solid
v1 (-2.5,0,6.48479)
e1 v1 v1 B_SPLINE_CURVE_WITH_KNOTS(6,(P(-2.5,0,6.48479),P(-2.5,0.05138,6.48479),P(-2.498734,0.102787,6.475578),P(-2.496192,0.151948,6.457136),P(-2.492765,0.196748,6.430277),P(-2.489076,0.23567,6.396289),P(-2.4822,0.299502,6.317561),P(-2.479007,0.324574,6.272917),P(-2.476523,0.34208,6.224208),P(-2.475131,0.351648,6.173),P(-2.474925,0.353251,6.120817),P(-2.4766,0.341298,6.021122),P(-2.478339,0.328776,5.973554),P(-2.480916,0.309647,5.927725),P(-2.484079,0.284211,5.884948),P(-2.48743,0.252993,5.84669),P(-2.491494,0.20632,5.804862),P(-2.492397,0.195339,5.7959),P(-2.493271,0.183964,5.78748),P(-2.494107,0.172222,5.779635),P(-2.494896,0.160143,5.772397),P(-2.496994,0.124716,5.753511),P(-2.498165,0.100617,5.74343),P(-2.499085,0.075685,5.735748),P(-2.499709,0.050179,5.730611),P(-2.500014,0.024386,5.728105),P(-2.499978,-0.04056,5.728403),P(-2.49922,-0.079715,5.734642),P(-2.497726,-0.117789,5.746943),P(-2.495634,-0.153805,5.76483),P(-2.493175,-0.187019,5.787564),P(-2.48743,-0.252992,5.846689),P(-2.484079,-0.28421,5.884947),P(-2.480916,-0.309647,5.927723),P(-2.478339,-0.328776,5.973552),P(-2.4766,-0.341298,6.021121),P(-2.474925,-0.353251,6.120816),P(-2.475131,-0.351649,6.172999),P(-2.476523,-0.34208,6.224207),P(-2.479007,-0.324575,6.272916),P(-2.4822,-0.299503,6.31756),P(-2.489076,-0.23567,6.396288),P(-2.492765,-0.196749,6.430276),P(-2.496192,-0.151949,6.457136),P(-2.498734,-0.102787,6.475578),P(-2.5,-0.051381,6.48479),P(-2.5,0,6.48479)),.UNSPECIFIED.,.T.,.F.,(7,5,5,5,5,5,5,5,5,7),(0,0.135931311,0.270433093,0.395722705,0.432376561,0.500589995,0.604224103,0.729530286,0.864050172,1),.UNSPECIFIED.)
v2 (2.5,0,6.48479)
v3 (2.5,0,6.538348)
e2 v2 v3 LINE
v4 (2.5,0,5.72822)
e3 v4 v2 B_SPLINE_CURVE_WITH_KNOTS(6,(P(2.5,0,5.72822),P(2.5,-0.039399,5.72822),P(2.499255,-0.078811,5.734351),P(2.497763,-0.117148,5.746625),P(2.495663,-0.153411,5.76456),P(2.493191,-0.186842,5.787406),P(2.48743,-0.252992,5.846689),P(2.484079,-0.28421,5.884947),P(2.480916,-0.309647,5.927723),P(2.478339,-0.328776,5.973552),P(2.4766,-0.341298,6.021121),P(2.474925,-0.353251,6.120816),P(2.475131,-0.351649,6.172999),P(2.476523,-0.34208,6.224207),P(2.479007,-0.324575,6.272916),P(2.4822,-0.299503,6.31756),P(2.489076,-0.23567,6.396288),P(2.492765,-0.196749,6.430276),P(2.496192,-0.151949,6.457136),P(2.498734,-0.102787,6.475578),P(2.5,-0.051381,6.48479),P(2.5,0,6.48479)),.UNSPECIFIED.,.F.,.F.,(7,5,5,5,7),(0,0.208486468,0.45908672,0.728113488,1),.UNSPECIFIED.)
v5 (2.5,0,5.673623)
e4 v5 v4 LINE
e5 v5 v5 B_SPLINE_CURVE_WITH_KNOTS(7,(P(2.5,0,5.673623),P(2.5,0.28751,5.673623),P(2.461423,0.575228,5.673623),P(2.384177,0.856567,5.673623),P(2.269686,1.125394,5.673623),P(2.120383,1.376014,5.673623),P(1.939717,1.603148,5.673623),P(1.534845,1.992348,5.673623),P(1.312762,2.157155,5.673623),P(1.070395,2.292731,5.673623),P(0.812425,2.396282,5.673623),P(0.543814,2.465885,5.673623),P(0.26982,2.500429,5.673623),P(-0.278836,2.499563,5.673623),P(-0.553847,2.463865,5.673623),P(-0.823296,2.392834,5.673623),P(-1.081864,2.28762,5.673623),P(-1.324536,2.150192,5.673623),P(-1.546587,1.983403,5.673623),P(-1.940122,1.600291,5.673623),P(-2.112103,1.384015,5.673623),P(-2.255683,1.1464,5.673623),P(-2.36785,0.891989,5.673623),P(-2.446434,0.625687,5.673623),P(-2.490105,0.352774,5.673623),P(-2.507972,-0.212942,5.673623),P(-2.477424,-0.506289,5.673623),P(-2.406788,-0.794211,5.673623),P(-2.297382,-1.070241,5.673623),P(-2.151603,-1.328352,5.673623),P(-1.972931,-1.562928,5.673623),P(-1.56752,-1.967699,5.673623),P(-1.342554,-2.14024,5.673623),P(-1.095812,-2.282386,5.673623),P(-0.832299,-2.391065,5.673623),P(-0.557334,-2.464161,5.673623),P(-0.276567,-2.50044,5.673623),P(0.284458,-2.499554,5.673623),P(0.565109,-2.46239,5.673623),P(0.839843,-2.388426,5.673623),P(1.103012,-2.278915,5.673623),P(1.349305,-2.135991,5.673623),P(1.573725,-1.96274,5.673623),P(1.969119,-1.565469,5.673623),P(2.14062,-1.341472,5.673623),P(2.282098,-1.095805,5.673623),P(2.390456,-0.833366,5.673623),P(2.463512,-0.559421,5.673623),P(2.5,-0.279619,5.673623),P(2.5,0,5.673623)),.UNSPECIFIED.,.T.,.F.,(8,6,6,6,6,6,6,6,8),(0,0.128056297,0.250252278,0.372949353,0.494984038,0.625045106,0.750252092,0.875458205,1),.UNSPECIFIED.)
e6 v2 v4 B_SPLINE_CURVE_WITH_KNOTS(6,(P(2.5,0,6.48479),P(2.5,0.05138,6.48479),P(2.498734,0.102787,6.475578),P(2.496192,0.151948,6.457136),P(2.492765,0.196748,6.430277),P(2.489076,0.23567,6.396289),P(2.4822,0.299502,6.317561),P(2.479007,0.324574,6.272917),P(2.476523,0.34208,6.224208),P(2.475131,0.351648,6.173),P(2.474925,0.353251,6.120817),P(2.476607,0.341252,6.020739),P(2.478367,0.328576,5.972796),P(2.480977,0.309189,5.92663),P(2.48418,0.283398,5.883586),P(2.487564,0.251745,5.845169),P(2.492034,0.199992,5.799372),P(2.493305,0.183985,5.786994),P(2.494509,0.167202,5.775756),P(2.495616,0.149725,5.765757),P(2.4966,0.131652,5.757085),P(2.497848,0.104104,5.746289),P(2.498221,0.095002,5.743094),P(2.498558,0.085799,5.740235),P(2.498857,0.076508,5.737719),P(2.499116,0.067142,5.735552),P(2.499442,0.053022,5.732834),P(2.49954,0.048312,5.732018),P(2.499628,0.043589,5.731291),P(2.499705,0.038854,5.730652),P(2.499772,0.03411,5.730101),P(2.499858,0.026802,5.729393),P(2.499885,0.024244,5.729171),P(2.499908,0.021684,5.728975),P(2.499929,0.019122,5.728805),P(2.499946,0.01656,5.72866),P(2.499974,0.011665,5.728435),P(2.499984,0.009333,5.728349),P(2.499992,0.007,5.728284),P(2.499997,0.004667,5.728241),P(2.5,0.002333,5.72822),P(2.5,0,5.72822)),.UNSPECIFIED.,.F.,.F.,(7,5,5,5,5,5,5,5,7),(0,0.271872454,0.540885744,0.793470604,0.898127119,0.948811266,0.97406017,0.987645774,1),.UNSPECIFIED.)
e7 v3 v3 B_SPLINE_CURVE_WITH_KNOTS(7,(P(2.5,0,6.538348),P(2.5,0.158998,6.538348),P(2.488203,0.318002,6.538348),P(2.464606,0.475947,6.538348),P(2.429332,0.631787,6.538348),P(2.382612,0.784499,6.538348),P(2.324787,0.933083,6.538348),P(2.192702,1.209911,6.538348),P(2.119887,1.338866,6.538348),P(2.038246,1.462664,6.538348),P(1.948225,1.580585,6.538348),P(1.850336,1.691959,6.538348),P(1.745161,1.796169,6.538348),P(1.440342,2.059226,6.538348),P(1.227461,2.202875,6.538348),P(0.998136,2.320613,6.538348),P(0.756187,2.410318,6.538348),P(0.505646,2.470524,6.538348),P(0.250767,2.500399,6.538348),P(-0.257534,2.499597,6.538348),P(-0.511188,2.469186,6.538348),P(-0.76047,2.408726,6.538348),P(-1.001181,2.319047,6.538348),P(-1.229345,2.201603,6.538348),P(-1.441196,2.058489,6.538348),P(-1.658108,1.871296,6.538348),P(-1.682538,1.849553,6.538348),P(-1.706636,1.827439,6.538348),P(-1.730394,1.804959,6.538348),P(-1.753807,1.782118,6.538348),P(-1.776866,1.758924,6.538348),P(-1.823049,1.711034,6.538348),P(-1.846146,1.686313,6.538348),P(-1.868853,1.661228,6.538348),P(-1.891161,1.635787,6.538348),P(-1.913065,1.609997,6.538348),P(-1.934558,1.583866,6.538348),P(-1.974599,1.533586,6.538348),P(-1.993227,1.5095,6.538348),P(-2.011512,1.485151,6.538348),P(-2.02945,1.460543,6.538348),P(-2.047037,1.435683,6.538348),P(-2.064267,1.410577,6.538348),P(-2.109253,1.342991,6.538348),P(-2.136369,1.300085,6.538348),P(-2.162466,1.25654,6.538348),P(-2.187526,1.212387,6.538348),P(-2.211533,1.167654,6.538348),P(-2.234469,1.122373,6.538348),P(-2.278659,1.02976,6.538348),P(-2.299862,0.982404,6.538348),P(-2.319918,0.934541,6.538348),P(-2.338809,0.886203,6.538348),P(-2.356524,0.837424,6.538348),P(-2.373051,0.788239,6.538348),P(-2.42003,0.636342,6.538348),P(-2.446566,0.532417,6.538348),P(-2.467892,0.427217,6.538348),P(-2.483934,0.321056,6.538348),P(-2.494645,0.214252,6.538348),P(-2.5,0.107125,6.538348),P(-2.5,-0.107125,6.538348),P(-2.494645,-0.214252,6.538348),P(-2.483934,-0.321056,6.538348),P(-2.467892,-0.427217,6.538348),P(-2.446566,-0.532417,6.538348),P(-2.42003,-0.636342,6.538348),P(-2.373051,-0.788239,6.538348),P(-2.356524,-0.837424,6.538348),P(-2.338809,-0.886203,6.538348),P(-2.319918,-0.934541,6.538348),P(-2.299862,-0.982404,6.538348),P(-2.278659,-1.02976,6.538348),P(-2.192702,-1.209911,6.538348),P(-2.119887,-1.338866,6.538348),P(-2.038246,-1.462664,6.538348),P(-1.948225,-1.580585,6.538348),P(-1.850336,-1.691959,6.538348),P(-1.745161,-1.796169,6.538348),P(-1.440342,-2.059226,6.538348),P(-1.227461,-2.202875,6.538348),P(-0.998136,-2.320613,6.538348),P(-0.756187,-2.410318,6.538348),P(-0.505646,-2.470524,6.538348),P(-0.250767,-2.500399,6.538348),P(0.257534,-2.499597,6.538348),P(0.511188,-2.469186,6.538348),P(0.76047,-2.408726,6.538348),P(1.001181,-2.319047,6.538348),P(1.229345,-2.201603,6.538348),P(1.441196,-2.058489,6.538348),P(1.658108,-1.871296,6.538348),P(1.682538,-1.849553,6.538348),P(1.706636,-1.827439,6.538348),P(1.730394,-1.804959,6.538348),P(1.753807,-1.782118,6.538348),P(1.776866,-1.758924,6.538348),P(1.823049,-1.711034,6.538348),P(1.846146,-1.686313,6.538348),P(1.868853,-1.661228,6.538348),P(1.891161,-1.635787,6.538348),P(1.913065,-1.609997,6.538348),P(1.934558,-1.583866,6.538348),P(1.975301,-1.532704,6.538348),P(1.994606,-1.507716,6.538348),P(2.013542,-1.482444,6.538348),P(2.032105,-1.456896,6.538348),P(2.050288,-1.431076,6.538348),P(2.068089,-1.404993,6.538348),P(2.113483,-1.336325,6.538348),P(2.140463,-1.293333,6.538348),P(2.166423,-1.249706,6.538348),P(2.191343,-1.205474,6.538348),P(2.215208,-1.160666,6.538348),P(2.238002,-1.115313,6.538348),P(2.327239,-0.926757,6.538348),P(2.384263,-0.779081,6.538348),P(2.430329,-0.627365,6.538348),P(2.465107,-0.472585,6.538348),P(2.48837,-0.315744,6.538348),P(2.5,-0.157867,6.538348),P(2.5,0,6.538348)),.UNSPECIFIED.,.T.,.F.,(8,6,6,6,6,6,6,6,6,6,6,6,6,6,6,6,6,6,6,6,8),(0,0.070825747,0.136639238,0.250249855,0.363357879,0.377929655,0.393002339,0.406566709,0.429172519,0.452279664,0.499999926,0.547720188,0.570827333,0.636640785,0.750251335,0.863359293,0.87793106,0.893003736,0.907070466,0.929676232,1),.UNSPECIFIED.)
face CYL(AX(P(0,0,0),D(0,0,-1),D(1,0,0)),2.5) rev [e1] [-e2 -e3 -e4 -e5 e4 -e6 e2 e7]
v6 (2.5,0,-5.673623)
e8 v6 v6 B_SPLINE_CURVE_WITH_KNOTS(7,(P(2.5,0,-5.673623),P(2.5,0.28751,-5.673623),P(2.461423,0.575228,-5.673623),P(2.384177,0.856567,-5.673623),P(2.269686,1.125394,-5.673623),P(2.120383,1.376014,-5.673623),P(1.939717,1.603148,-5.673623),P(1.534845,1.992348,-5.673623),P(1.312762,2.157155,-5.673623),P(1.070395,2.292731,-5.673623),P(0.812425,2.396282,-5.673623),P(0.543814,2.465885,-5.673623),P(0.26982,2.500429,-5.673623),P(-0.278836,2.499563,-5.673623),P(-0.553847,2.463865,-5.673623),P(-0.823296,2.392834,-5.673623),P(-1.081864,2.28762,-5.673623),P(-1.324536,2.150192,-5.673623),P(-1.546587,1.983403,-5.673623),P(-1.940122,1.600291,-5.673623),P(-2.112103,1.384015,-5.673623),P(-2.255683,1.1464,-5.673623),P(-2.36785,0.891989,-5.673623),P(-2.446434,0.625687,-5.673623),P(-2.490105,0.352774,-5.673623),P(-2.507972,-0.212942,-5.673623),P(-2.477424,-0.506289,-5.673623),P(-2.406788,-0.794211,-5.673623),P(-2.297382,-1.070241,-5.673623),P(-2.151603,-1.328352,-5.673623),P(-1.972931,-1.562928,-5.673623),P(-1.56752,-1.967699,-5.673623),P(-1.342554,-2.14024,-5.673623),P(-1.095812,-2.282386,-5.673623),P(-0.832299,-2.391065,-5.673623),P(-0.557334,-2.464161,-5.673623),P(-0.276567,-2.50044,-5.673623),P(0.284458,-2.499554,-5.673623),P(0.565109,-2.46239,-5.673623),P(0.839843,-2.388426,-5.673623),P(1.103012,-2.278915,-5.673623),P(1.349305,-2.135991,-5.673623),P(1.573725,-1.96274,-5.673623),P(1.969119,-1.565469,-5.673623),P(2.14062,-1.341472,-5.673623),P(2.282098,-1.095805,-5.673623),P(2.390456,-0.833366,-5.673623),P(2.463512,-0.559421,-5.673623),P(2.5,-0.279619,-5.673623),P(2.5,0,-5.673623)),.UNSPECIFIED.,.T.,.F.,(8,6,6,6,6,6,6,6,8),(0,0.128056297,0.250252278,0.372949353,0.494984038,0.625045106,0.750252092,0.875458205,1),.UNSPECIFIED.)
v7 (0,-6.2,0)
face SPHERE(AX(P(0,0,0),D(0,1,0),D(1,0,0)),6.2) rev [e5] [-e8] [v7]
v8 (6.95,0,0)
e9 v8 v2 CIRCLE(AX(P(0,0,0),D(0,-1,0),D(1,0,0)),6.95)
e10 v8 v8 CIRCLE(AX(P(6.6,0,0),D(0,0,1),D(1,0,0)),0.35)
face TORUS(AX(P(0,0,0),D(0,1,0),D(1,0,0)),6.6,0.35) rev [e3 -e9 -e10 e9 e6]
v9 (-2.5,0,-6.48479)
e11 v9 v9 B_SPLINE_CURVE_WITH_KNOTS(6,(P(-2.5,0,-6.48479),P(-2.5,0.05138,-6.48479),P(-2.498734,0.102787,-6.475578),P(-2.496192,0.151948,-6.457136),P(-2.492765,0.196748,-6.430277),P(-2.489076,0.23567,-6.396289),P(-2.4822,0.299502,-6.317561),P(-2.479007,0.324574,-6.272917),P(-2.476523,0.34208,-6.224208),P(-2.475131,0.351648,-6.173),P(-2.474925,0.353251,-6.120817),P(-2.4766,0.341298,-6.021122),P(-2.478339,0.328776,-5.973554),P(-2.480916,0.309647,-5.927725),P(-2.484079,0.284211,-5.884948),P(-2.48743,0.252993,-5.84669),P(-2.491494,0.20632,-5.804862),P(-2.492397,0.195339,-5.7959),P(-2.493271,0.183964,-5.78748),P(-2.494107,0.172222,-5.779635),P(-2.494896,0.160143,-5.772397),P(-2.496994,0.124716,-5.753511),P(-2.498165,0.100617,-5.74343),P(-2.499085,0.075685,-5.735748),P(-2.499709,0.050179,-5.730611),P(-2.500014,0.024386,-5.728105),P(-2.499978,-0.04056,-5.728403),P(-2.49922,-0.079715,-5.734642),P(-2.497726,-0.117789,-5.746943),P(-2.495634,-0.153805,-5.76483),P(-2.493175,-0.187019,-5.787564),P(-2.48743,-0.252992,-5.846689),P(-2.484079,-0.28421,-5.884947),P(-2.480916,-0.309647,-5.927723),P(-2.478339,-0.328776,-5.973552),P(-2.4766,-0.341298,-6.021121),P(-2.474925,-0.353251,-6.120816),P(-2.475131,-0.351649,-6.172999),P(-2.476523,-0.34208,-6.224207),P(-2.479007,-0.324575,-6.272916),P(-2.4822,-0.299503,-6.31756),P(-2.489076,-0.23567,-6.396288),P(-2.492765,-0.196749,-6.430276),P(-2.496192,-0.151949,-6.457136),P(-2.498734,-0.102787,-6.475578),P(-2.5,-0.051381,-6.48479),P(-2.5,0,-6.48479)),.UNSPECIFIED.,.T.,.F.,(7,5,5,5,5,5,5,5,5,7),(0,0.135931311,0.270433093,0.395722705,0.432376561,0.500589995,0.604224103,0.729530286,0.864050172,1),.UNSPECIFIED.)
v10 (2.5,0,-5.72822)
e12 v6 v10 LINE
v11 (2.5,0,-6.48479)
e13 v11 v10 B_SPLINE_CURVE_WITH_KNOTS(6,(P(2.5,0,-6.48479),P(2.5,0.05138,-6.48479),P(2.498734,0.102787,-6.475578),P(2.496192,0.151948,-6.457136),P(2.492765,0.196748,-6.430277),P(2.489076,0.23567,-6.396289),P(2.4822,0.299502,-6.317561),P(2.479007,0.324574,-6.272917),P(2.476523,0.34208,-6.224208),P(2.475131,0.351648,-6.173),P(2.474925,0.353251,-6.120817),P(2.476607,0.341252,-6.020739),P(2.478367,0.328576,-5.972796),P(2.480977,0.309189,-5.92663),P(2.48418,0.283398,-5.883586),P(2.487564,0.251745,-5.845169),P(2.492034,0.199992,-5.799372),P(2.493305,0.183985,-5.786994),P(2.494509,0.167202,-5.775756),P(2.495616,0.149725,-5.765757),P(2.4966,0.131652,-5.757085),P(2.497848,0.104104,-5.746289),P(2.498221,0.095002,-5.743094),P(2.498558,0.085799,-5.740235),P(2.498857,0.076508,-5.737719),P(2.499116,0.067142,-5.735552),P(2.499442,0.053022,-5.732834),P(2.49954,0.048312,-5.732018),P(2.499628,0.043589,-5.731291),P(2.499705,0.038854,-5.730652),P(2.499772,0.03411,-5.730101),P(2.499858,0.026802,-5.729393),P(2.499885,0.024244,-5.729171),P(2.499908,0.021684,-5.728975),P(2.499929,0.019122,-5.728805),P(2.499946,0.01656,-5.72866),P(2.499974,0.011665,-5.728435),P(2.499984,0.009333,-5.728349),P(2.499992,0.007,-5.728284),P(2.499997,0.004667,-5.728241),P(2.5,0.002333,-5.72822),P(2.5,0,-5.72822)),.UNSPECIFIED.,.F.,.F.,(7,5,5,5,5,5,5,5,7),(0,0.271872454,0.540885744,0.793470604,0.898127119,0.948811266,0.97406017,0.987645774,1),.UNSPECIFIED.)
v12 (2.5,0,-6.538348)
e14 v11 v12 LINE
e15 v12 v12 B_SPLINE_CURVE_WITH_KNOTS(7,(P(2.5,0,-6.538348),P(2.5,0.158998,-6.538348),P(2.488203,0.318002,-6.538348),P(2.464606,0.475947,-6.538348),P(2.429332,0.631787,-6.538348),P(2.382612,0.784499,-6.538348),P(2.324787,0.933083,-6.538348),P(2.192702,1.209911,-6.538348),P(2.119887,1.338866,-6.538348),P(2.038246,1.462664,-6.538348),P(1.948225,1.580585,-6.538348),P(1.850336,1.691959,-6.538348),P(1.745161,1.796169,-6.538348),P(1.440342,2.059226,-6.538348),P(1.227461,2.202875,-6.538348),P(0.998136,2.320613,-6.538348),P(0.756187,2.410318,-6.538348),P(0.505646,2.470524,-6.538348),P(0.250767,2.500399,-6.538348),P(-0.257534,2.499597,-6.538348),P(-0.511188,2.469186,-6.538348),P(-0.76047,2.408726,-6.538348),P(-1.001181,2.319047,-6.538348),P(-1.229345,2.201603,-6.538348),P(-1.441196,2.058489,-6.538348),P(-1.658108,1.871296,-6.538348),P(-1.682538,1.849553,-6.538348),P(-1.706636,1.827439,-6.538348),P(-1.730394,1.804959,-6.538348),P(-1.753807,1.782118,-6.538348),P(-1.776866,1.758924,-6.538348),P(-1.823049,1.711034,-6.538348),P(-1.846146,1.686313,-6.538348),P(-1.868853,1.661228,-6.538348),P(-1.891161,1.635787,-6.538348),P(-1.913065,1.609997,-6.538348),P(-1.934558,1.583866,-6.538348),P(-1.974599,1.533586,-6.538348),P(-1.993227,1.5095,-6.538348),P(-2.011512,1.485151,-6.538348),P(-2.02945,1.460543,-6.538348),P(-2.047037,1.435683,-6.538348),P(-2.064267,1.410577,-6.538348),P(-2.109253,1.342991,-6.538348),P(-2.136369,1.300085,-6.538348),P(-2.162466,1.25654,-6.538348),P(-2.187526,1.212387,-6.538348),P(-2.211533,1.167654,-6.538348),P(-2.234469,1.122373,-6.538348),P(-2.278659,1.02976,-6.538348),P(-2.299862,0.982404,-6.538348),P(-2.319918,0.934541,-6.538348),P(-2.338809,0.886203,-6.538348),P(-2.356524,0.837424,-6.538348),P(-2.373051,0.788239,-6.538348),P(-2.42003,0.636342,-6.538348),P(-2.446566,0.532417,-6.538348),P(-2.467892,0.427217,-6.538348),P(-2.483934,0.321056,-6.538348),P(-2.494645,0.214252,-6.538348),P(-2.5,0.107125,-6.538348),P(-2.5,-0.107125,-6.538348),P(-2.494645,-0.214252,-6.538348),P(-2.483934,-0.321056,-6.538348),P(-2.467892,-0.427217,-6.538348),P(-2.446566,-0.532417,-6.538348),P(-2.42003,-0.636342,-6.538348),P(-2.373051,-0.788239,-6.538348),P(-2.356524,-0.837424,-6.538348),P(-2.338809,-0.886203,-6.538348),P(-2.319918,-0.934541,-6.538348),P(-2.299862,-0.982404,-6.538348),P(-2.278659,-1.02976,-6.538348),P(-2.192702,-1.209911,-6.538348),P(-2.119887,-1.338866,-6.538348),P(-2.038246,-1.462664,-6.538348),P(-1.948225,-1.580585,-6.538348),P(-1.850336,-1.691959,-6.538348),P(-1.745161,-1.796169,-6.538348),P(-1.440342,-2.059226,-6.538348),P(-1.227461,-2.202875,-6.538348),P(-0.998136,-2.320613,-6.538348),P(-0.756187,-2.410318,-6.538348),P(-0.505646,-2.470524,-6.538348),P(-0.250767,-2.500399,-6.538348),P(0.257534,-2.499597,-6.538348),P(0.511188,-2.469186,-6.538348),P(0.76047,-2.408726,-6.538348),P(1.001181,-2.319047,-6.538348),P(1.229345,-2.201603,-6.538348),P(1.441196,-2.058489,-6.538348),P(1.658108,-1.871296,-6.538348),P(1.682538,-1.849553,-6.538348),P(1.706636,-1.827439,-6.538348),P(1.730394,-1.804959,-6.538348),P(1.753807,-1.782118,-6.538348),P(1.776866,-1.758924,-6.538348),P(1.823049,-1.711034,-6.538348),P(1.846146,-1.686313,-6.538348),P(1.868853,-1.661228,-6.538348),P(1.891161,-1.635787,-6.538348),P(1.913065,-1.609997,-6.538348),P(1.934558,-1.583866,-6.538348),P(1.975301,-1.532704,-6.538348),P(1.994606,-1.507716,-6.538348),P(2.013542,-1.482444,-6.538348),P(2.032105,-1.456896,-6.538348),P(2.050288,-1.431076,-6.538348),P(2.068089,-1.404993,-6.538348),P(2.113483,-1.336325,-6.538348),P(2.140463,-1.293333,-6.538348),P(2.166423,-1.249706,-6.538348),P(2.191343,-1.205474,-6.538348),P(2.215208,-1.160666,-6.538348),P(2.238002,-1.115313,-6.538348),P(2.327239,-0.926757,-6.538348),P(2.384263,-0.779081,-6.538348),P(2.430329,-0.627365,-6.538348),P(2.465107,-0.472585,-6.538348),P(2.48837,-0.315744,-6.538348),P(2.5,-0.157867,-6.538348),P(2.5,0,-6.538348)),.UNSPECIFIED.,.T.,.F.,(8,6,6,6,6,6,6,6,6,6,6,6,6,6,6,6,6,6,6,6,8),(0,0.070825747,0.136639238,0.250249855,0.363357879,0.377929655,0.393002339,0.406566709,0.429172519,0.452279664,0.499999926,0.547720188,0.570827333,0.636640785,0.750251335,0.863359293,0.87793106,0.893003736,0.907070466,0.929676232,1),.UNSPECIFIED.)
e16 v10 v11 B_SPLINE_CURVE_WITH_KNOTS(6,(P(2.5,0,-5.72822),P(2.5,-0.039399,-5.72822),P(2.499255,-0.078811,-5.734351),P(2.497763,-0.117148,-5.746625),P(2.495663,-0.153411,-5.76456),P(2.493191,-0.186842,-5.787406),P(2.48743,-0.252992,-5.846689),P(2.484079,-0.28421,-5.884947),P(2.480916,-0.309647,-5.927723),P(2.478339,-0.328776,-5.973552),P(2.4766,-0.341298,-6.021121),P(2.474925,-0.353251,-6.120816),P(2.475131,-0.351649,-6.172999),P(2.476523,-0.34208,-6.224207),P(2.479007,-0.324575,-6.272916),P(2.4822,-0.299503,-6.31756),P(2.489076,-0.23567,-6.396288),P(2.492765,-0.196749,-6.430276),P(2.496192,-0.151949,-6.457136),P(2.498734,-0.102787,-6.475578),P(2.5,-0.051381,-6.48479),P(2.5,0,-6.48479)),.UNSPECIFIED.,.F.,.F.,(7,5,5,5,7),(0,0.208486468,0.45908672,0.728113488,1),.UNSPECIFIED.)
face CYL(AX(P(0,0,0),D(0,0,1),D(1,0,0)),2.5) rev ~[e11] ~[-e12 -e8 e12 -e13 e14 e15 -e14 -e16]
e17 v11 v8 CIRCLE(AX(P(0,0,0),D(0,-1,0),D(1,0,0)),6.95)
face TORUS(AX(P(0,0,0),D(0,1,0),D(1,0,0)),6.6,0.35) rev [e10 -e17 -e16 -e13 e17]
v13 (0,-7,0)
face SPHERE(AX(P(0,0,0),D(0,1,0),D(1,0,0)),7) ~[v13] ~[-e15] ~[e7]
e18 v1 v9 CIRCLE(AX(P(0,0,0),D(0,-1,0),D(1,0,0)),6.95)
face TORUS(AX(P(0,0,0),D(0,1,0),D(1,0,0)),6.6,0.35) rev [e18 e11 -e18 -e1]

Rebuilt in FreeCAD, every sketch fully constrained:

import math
import FreeCAD as App
import Part
import Sketcher
from FreeCAD import Vector

doc = App.newDocument("Part")
body = doc.addObject("PartDesign::Body", "Body")

# Sketch on XY plane
sketch1 = doc.addObject("Sketcher::SketchObject", "Sketch")
body.addObject(sketch1)
sketch1.AttachmentSupport = (doc.XY_Plane, [""])
sketch1.MapMode = "FlatFace"
sketch1.addGeometry(Part.LineSegment(Vector(0, -6.2, 0), Vector(0, -7, 0)), False)
sketch1.addGeometry(Part.ArcOfCircle(Part.Circle(Vector(0, 0, 0), Vector(0, 0, 1), 7), math.radians(-90), math.radians(90)), False)
sketch1.addGeometry(Part.LineSegment(Vector(0, 7, 0), Vector(0, 6.2, 0)), False)
sketch1.addGeometry(Part.ArcOfCircle(Part.Circle(Vector(0, 0, 0), Vector(0, 0, 1), 6.2), math.radians(-90), math.radians(90)), False)
sketch1.addConstraint(Sketcher.Constraint("Coincident", 0, 2, 1, 1))
sketch1.addConstraint(Sketcher.Constraint("Coincident", 1, 2, 2, 1))
sketch1.addConstraint(Sketcher.Constraint("Coincident", 2, 2, 3, 2))
sketch1.addConstraint(Sketcher.Constraint("Coincident", 3, 1, 0, 1))
sketch1.addConstraint(Sketcher.Constraint("Vertical", 0))
sketch1.addConstraint(Sketcher.Constraint("Vertical", 2))
sketch1.addConstraint(Sketcher.Constraint("Coincident", 1, 3, -1, 1))
sketch1.addConstraint(Sketcher.Constraint("Coincident", 3, 3, -1, 1))
sketch1.addConstraint(Sketcher.Constraint("PointOnObject", 0, 2, -2))
sketch1.addConstraint(Sketcher.Constraint("PointOnObject", 1, 2, -2))
sketch1.addConstraint(Sketcher.Constraint("Radius", 1, 7.0))
sketch1.addConstraint(Sketcher.Constraint("DistanceY", 0, 2, 0, 1, 0.8))
revolution = doc.addObject("PartDesign::Revolution", "Revolution")
body.addObject(revolution)
revolution.Profile = sketch1
revolution.ReferenceAxis = (sketch1, ["V_Axis"])
revolution.Angle = 360

# Sketch on XY plane
sketch2 = doc.addObject("Sketcher::SketchObject", "Sketch001")
body.addObject(sketch2)
sketch2.AttachmentSupport = (doc.XY_Plane, [""])
sketch2.MapMode = "FlatFace"
sketch2.addGeometry(Part.Circle(Vector(6.6, 0, 0), Vector(0, 0, 1), 0.35), False)
sketch2.addConstraint(Sketcher.Constraint("PointOnObject", 0, 3, -1))
sketch2.addConstraint(Sketcher.Constraint("Diameter", 0, 0.7))
sketch2.addConstraint(Sketcher.Constraint("DistanceX", -1, 1, 0, 3, 6.6))
groove = doc.addObject("PartDesign::Groove", "Groove")
body.addObject(groove)
groove.Profile = sketch2
groove.ReferenceAxis = (sketch2, ["V_Axis"])
groove.Angle = 360

# Sketch on XY plane
sketch3 = doc.addObject("Sketcher::SketchObject", "Sketch002")
body.addObject(sketch3)
sketch3.AttachmentSupport = (doc.XY_Plane, [""])
sketch3.MapMode = "FlatFace"
sketch3.addGeometry(Part.Circle(Vector(0, 0, 0), Vector(0, 0, 1), 2.5), False)
sketch3.addConstraint(Sketcher.Constraint("Coincident", 0, 3, -1, 1))
sketch3.addConstraint(Sketcher.Constraint("Diameter", 0, 5.0))
pocket1 = doc.addObject("PartDesign::Pocket", "Pocket")
body.addObject(pocket1)
pocket1.Profile = sketch3
pocket1.Length = 50
pocket1.Midplane = True

doc.recompute()
